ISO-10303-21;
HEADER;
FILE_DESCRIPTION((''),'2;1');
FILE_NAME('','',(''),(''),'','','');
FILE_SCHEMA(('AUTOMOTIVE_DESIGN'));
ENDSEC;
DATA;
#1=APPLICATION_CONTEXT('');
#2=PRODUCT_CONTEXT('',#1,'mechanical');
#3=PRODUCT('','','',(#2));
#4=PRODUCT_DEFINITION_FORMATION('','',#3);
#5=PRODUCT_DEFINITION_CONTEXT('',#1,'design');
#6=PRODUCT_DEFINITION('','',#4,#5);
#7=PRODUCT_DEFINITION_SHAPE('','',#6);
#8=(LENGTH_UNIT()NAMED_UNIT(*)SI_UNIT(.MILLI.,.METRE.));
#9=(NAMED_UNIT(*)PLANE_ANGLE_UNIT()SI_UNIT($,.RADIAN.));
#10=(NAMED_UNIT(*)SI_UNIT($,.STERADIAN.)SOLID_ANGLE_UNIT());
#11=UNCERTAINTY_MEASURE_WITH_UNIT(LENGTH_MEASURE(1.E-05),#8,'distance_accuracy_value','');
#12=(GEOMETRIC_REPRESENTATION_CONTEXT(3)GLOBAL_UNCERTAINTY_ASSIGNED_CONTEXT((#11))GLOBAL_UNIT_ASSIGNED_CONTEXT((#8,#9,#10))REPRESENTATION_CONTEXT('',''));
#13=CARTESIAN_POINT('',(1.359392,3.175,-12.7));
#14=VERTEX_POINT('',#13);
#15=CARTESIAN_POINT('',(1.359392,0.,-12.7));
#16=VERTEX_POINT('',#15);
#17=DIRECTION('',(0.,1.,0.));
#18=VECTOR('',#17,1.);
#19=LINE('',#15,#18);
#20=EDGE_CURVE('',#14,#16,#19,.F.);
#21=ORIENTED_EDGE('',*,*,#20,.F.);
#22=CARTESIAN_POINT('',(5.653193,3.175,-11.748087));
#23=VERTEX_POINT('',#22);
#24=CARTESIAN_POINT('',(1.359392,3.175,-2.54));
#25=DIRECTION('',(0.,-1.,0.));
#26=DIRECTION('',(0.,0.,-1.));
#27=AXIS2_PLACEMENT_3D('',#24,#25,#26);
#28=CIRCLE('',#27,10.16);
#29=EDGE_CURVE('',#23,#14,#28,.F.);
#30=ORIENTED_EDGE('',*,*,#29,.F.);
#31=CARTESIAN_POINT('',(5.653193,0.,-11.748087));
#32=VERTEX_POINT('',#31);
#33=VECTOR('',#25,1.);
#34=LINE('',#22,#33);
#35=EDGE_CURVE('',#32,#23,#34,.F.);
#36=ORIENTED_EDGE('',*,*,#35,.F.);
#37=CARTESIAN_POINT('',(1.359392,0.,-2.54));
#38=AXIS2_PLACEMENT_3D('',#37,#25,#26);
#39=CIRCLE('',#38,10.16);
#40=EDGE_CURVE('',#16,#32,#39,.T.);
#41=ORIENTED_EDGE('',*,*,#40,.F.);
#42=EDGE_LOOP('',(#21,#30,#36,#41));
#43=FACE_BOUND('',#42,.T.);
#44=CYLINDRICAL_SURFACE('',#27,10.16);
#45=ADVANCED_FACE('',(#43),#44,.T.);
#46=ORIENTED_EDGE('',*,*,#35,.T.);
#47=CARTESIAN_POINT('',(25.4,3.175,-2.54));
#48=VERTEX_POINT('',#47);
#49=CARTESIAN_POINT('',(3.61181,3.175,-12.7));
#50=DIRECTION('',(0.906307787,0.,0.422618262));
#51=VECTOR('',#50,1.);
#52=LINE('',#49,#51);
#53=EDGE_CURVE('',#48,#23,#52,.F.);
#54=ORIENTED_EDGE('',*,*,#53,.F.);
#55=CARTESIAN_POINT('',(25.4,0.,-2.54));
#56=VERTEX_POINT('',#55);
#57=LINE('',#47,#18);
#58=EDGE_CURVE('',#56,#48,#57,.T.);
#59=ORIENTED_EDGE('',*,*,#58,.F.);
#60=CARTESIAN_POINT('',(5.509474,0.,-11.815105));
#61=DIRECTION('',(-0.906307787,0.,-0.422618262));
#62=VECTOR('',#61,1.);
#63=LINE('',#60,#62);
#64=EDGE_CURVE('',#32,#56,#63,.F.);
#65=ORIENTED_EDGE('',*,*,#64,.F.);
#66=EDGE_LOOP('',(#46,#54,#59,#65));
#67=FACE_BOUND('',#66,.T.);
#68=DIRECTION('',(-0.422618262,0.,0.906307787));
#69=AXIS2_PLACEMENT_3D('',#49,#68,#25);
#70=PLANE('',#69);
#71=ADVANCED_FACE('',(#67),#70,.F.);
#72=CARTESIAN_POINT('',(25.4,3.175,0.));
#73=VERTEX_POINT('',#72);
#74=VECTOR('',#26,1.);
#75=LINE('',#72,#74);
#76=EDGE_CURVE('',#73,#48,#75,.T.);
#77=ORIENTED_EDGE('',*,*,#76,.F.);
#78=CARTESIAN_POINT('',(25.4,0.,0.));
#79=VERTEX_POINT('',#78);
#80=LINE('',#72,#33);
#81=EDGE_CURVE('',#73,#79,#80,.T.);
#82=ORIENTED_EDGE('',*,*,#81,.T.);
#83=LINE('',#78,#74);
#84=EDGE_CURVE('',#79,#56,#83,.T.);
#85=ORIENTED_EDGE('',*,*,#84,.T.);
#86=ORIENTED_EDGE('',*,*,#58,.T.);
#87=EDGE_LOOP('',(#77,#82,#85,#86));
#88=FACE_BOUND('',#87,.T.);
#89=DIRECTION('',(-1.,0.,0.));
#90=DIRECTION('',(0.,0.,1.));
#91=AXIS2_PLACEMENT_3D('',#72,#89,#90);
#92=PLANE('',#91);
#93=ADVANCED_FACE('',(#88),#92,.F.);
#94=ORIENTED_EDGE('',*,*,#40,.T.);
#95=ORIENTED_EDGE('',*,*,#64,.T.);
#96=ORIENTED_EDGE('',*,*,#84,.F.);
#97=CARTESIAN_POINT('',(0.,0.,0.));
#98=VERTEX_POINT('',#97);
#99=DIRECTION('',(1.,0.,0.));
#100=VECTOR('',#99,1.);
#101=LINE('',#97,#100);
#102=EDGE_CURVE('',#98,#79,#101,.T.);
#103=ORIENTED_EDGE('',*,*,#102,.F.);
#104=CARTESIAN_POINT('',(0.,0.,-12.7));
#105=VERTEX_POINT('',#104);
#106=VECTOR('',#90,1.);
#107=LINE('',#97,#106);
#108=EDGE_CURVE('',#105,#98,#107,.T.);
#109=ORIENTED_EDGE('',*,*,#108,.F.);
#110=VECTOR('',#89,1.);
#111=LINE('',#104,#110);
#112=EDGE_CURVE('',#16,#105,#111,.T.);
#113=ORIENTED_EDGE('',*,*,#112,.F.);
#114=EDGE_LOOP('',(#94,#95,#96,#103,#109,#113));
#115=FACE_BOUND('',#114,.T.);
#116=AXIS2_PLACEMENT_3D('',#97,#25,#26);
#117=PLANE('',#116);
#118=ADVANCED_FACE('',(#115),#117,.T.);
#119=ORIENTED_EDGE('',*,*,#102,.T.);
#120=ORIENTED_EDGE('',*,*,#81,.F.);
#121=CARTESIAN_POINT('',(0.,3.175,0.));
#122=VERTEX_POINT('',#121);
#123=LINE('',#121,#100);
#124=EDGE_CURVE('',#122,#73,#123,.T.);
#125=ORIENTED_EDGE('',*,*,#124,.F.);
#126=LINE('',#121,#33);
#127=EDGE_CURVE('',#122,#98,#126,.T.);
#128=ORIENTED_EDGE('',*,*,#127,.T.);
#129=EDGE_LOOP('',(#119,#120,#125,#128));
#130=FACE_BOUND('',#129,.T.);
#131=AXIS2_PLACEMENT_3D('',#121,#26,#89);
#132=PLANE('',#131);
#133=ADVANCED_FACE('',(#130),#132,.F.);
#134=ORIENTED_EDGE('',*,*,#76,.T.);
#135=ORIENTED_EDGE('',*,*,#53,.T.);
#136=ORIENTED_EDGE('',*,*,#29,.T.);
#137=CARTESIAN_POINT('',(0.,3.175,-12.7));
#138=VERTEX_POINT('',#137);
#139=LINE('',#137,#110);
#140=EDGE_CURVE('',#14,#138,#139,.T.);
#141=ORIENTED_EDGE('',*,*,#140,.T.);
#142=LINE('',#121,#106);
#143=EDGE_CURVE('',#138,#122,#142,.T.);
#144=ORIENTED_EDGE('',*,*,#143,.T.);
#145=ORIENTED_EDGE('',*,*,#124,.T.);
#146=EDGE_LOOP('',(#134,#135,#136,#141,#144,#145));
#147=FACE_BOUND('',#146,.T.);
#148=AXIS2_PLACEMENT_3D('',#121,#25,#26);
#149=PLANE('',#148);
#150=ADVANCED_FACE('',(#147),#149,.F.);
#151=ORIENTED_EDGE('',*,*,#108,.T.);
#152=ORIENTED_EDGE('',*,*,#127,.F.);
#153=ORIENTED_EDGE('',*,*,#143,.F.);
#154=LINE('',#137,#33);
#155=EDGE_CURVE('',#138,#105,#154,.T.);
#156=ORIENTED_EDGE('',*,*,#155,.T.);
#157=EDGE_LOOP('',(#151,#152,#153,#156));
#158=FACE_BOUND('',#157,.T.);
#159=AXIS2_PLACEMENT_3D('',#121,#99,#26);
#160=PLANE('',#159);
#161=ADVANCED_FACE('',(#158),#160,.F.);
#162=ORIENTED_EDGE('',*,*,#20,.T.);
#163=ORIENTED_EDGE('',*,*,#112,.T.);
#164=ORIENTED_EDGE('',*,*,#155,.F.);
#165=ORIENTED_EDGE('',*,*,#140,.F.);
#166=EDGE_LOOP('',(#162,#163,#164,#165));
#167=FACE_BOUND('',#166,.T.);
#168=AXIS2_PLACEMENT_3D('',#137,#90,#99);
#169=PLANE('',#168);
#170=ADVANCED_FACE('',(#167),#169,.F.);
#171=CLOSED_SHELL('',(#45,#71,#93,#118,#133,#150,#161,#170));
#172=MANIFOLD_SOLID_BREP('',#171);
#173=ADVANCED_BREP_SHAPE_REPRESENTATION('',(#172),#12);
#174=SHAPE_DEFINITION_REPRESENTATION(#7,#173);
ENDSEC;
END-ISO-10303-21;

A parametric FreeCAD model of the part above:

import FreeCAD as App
import Part
import Sketcher
Q = App.Units.Quantity


def edges_at(feature, points):
    """Names of the edges that pass closest to the given points."""
    edges = feature.Shape.Edges
    near = lambda p: min(range(len(edges)), key=lambda i: edges[i].distToShape(Part.Vertex(*p))[0])
    return sorted({f"Edge{near(p) + 1}" for p in points})


def add_polygon(sketch, points):
    """Adds a closed chain of lines whose ends are joined by coincident constraints."""
    first, n = sketch.GeometryCount, len(points)
    for a, b in zip(points, points[1:] + points[:1]):
        sketch.addGeometry(Part.LineSegment(App.Vector(*a, 0), App.Vector(*b, 0)), False)
    for i in range(n):
        sketch.addConstraint(Sketcher.Constraint("Coincident", first + i, 2, first + (i + 1) % n, 1))

doc = App.newDocument("Part")
params = doc.addObject("Spreadsheet::Sheet", "Params")
for row, (alias, value) in enumerate([
    ("sketch1_width", "1 in"),
    ("sketch1_height", "0.5 in"),
    ("pad1_length", "0.125 in"),
    ("chamfer_size", "0.4 in"),
    ("chamfer_size2", "21.78819 mm"),
    ("fillet_radius", "0.4 in"),
], start=1):
    params.set(f"A{row}", alias)
    params.set(f"B{row}", "=" + value)
    params.setAlias(f"B{row}", alias)

body = doc.addObject("PartDesign::Body", "Body")

sketch1 = body.newObject("Sketcher::SketchObject", "Sketch")
sketch1.AttachmentSupport = (doc.getObject("XZ_Plane"), [""])
sketch1.MapMode = "FlatFace"
add_polygon(sketch1, [(0, -13), (0, 0), (25, 0), (25, -13)])
sketch1.addConstraint([
    Sketcher.Constraint("Vertical", 0),
    Sketcher.Constraint("Horizontal", 1),
    Sketcher.Constraint("Vertical", 2),
    Sketcher.Constraint("Horizontal", 3),
    Sketcher.Constraint("Coincident", 0, 2, -1, 1),
    Sketcher.Constraint("DistanceX", 1, 1, 1, 2, Q("1 in")),
    Sketcher.Constraint("DistanceY", 0, 1, 0, 2, Q("0.5 in")),
])
sketch1.setExpression("Constraints[9]", "Params.sketch1_width")
sketch1.setExpression("Constraints[10]", "Params.sketch1_height")
pad1 = body.newObject("PartDesign::Pad", "Pad")
pad1.Profile = sketch1
pad1.setExpression("Length", "Params.pad1_length")
pad1.Reversed = True
doc.recompute()

chamfer = body.newObject("PartDesign::Chamfer", "Chamfer")
chamfer.Base = (pad1, edges_at(pad1, [(25.4, 1.587, -12.7)]))
chamfer.ChamferType = "Two distances"
chamfer.setExpression("Size", "Params.chamfer_size")
chamfer.setExpression("Size2", "Params.chamfer_size2")
doc.recompute()

fillet = body.newObject("PartDesign::Fillet", "Fillet")
fillet.Base = (chamfer, edges_at(chamfer, [(3.612, 1.587, -12.7)]))
fillet.setExpression("Radius", "Params.fillet_radius")

doc.recompute()
